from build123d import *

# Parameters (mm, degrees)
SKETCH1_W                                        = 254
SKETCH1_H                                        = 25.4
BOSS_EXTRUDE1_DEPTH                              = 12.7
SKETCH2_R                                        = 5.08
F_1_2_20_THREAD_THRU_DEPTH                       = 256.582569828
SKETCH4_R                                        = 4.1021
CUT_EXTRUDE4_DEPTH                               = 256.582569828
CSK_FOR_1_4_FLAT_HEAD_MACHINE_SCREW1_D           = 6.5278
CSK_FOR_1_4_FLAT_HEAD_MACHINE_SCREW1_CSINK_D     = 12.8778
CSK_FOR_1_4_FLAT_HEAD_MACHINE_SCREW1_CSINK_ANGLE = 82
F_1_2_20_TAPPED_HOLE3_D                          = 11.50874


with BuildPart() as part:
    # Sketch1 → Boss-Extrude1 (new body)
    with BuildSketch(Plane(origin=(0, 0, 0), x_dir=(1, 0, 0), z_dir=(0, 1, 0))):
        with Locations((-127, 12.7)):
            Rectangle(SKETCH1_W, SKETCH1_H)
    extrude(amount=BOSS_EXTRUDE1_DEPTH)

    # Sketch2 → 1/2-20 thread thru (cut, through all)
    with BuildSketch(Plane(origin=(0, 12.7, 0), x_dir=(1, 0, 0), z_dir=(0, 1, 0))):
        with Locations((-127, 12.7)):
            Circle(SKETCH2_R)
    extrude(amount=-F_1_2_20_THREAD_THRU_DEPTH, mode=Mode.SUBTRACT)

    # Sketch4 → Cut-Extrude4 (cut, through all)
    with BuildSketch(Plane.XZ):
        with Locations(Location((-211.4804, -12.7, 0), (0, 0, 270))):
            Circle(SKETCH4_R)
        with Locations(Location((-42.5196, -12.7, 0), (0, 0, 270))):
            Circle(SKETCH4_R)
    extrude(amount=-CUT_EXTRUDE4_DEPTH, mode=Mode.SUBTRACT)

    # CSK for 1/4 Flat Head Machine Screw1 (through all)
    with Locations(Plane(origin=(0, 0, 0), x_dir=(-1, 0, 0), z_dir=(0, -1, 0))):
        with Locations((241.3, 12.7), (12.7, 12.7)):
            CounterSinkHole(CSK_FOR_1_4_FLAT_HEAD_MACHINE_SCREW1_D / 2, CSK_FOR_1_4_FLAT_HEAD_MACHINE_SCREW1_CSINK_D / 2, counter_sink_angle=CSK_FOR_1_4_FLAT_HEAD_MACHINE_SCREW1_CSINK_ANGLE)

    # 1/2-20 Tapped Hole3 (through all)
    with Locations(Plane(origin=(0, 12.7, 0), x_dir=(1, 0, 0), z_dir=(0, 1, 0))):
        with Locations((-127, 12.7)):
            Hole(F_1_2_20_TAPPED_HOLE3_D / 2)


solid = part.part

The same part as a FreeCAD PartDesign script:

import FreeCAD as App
import Part
import Sketcher
Q = App.Units.Quantity

doc = App.newDocument("Part")
body = doc.addObject("PartDesign::Body", "Body")

# Sketch on XZ plane
sketch1 = body.newObject("Sketcher::SketchObject", "Sketch")
sketch1.AttachmentSupport = (doc.getObject("XZ_Plane"), [""])
sketch1.MapMode = "FlatFace"
sketch1.addGeometry([
    Part.LineSegment(App.Vector(-254, -25, 0), App.Vector(-254, 0, 0)),
    Part.LineSegment(App.Vector(-254, 0, 0), App.Vector(0, 0, 0)),
    Part.LineSegment(App.Vector(0, 0, 0), App.Vector(0, -25, 0)),
    Part.LineSegment(App.Vector(0, -25, 0), App.Vector(-254, -25, 0)),
], False)
sketch1.addConstraint([
    Sketcher.Constraint("Coincident", 0, 2, 1, 1),
    Sketcher.Constraint("Coincident", 1, 2, 2, 1),
    Sketcher.Constraint("Coincident", 2, 2, 3, 1),
    Sketcher.Constraint("Coincident", 3, 2, 0, 1),
    Sketcher.Constraint("Vertical", 0),
    Sketcher.Constraint("Horizontal", 1),
    Sketcher.Constraint("Vertical", 2),
    Sketcher.Constraint("Horizontal", 3),
    Sketcher.Constraint("Coincident", 1, 2, -1, 1),
    Sketcher.Constraint("DistanceX", 1, 1, 1, 2, Q("10 in")),
    Sketcher.Constraint("DistanceY", 0, 1, 0, 2, Q("1 in")),
])
pad1 = body.newObject("PartDesign::Pad", "Pad")
pad1.Profile = sketch1
pad1.Length = Q("0.5 in")
pad1.Reversed = True

# Sketch on XZ plane
sketch2 = body.newObject("Sketcher::SketchObject", "Sketch001")
sketch2.AttachmentSupport = (doc.getObject("XZ_Plane"), [""])
sketch2.MapMode = "FlatFace"
sketch2.AttachmentOffset = App.Placement(App.Vector(0, 0, -0.5 * 25.4), App.Rotation())
sketch2.addGeometry(Part.Circle(App.Vector(-127, -13, 0), App.Vector(0, 0, 1), 5), False)
sketch2.addConstraint([
    Sketcher.Constraint("Diameter", 0, Q("0.4 in")),
    Sketcher.Constraint("DistanceX", 0, 3, -1, 1, Q("5 in")),
    Sketcher.Constraint("DistanceY", 0, 3, -1, 1, Q("0.5 in")),
])
pocket1 = body.newObject("PartDesign::Pocket", "Pocket")
pocket1.Profile = sketch2
pocket1.Type = "ThroughAll"
pocket1.Reversed = True

# Sketch on XZ plane
sketch3 = body.newObject("Sketcher::SketchObject", "Sketch002")
sketch3.AttachmentSupport = (doc.getObject("XZ_Plane"), [""])
sketch3.MapMode = "FlatFace"
sketch3.addGeometry([
    Part.Circle(App.Vector(-211.5, -12.7, 0), App.Vector(0, 0, 1), 4.1),
    Part.Circle(App.Vector(-42.5, -12.7, 0), App.Vector(0, 0, 1), 4.1),
], False)
sketch3.addConstraint([
    Sketcher.Constraint("Equal", 0, 1),
    Sketcher.Constraint("Horizontal", 0, 3, 1, 3),
    Sketcher.Constraint("Diameter", 0, Q("0.323 in")),
    Sketcher.Constraint("DistanceY", 0, 3, -1, 1, Q("0.5 in")),
    Sketcher.Constraint("DistanceX", 0, 3, -1, 1, Q("8.326 in")),
    Sketcher.Constraint("DistanceX", 1, 3, -1, 1, Q("1.674 in")),
])
pocket2 = body.newObject("PartDesign::Pocket", "Pocket001")
pocket2.Profile = sketch3
pocket2.Type = "ThroughAll"

# Sketch on XZ plane
sketch4 = body.newObject("Sketcher::SketchObject", "Sketch003")
sketch4.AttachmentSupport = (doc.getObject("XZ_Plane"), [""])
sketch4.MapMode = "FlatFace"
sketch4.addGeometry([
    Part.Circle(App.Vector(-241.3, -12.7, 0), App.Vector(0, 0, 1), 3.3),
    Part.Circle(App.Vector(-12.7, -12.7, 0), App.Vector(0, 0, 1), 3.3),
], False)
sketch4.addConstraint([
    Sketcher.Constraint("Equal", 0, 1),
    Sketcher.Constraint("Horizontal", 0, 3, 1, 3),
    Sketcher.Constraint("Diameter", 0, Q("0.257 in")),
    Sketcher.Constraint("DistanceX", 0, 3, 1, 3, Q("9 in")),
    Sketcher.Constraint("DistanceX", 0, 3, -1, 1, Q("9.5 in")),
    Sketcher.Constraint("DistanceY", 0, 3, -1, 1, Q("0.5 in")),
])
doc.recompute()
hole = body.newObject("PartDesign::Hole", "Hole")
hole.Profile = sketch4
hole.ThreadType = "None"
hole.Diameter = Q("0.257 in")
hole.DepthType = "ThroughAll"
hole.HoleCutType = "Countersink"
hole.HoleCutDiameter = Q("0.507 in")
hole.HoleCutCountersinkAngle = 82

# Sketch on XZ plane
sketch5 = body.newObject("Sketcher::SketchObject", "Sketch004")
sketch5.AttachmentSupport = (doc.getObject("XZ_Plane"), [""])
sketch5.MapMode = "FlatFace"
sketch5.AttachmentOffset = App.Placement(App.Vector(0, 0, -0.5 * 25.4), App.Rotation())
sketch5.addGeometry(Part.Circle(App.Vector(-127, -13, 0), App.Vector(0, 0, 1), 6), False)
sketch5.addConstraint([
    Sketcher.Constraint("DistanceX", 0, 3, -1, 1, Q("5 in")),
    Sketcher.Constraint("Diameter", 0, Q("0.4531 in")),
    Sketcher.Constraint("DistanceY", 0, 3, -1, 1, Q("0.5 in")),
])
doc.recompute()
hole2 = body.newObject("PartDesign::Hole", "Hole001")
hole2.Profile = sketch5
hole2.ThreadType = "None"
hole2.Diameter = Q("0.4531 in")
hole2.DepthType = "ThroughAll"
hole2.Reversed = True

doc.recompute()
